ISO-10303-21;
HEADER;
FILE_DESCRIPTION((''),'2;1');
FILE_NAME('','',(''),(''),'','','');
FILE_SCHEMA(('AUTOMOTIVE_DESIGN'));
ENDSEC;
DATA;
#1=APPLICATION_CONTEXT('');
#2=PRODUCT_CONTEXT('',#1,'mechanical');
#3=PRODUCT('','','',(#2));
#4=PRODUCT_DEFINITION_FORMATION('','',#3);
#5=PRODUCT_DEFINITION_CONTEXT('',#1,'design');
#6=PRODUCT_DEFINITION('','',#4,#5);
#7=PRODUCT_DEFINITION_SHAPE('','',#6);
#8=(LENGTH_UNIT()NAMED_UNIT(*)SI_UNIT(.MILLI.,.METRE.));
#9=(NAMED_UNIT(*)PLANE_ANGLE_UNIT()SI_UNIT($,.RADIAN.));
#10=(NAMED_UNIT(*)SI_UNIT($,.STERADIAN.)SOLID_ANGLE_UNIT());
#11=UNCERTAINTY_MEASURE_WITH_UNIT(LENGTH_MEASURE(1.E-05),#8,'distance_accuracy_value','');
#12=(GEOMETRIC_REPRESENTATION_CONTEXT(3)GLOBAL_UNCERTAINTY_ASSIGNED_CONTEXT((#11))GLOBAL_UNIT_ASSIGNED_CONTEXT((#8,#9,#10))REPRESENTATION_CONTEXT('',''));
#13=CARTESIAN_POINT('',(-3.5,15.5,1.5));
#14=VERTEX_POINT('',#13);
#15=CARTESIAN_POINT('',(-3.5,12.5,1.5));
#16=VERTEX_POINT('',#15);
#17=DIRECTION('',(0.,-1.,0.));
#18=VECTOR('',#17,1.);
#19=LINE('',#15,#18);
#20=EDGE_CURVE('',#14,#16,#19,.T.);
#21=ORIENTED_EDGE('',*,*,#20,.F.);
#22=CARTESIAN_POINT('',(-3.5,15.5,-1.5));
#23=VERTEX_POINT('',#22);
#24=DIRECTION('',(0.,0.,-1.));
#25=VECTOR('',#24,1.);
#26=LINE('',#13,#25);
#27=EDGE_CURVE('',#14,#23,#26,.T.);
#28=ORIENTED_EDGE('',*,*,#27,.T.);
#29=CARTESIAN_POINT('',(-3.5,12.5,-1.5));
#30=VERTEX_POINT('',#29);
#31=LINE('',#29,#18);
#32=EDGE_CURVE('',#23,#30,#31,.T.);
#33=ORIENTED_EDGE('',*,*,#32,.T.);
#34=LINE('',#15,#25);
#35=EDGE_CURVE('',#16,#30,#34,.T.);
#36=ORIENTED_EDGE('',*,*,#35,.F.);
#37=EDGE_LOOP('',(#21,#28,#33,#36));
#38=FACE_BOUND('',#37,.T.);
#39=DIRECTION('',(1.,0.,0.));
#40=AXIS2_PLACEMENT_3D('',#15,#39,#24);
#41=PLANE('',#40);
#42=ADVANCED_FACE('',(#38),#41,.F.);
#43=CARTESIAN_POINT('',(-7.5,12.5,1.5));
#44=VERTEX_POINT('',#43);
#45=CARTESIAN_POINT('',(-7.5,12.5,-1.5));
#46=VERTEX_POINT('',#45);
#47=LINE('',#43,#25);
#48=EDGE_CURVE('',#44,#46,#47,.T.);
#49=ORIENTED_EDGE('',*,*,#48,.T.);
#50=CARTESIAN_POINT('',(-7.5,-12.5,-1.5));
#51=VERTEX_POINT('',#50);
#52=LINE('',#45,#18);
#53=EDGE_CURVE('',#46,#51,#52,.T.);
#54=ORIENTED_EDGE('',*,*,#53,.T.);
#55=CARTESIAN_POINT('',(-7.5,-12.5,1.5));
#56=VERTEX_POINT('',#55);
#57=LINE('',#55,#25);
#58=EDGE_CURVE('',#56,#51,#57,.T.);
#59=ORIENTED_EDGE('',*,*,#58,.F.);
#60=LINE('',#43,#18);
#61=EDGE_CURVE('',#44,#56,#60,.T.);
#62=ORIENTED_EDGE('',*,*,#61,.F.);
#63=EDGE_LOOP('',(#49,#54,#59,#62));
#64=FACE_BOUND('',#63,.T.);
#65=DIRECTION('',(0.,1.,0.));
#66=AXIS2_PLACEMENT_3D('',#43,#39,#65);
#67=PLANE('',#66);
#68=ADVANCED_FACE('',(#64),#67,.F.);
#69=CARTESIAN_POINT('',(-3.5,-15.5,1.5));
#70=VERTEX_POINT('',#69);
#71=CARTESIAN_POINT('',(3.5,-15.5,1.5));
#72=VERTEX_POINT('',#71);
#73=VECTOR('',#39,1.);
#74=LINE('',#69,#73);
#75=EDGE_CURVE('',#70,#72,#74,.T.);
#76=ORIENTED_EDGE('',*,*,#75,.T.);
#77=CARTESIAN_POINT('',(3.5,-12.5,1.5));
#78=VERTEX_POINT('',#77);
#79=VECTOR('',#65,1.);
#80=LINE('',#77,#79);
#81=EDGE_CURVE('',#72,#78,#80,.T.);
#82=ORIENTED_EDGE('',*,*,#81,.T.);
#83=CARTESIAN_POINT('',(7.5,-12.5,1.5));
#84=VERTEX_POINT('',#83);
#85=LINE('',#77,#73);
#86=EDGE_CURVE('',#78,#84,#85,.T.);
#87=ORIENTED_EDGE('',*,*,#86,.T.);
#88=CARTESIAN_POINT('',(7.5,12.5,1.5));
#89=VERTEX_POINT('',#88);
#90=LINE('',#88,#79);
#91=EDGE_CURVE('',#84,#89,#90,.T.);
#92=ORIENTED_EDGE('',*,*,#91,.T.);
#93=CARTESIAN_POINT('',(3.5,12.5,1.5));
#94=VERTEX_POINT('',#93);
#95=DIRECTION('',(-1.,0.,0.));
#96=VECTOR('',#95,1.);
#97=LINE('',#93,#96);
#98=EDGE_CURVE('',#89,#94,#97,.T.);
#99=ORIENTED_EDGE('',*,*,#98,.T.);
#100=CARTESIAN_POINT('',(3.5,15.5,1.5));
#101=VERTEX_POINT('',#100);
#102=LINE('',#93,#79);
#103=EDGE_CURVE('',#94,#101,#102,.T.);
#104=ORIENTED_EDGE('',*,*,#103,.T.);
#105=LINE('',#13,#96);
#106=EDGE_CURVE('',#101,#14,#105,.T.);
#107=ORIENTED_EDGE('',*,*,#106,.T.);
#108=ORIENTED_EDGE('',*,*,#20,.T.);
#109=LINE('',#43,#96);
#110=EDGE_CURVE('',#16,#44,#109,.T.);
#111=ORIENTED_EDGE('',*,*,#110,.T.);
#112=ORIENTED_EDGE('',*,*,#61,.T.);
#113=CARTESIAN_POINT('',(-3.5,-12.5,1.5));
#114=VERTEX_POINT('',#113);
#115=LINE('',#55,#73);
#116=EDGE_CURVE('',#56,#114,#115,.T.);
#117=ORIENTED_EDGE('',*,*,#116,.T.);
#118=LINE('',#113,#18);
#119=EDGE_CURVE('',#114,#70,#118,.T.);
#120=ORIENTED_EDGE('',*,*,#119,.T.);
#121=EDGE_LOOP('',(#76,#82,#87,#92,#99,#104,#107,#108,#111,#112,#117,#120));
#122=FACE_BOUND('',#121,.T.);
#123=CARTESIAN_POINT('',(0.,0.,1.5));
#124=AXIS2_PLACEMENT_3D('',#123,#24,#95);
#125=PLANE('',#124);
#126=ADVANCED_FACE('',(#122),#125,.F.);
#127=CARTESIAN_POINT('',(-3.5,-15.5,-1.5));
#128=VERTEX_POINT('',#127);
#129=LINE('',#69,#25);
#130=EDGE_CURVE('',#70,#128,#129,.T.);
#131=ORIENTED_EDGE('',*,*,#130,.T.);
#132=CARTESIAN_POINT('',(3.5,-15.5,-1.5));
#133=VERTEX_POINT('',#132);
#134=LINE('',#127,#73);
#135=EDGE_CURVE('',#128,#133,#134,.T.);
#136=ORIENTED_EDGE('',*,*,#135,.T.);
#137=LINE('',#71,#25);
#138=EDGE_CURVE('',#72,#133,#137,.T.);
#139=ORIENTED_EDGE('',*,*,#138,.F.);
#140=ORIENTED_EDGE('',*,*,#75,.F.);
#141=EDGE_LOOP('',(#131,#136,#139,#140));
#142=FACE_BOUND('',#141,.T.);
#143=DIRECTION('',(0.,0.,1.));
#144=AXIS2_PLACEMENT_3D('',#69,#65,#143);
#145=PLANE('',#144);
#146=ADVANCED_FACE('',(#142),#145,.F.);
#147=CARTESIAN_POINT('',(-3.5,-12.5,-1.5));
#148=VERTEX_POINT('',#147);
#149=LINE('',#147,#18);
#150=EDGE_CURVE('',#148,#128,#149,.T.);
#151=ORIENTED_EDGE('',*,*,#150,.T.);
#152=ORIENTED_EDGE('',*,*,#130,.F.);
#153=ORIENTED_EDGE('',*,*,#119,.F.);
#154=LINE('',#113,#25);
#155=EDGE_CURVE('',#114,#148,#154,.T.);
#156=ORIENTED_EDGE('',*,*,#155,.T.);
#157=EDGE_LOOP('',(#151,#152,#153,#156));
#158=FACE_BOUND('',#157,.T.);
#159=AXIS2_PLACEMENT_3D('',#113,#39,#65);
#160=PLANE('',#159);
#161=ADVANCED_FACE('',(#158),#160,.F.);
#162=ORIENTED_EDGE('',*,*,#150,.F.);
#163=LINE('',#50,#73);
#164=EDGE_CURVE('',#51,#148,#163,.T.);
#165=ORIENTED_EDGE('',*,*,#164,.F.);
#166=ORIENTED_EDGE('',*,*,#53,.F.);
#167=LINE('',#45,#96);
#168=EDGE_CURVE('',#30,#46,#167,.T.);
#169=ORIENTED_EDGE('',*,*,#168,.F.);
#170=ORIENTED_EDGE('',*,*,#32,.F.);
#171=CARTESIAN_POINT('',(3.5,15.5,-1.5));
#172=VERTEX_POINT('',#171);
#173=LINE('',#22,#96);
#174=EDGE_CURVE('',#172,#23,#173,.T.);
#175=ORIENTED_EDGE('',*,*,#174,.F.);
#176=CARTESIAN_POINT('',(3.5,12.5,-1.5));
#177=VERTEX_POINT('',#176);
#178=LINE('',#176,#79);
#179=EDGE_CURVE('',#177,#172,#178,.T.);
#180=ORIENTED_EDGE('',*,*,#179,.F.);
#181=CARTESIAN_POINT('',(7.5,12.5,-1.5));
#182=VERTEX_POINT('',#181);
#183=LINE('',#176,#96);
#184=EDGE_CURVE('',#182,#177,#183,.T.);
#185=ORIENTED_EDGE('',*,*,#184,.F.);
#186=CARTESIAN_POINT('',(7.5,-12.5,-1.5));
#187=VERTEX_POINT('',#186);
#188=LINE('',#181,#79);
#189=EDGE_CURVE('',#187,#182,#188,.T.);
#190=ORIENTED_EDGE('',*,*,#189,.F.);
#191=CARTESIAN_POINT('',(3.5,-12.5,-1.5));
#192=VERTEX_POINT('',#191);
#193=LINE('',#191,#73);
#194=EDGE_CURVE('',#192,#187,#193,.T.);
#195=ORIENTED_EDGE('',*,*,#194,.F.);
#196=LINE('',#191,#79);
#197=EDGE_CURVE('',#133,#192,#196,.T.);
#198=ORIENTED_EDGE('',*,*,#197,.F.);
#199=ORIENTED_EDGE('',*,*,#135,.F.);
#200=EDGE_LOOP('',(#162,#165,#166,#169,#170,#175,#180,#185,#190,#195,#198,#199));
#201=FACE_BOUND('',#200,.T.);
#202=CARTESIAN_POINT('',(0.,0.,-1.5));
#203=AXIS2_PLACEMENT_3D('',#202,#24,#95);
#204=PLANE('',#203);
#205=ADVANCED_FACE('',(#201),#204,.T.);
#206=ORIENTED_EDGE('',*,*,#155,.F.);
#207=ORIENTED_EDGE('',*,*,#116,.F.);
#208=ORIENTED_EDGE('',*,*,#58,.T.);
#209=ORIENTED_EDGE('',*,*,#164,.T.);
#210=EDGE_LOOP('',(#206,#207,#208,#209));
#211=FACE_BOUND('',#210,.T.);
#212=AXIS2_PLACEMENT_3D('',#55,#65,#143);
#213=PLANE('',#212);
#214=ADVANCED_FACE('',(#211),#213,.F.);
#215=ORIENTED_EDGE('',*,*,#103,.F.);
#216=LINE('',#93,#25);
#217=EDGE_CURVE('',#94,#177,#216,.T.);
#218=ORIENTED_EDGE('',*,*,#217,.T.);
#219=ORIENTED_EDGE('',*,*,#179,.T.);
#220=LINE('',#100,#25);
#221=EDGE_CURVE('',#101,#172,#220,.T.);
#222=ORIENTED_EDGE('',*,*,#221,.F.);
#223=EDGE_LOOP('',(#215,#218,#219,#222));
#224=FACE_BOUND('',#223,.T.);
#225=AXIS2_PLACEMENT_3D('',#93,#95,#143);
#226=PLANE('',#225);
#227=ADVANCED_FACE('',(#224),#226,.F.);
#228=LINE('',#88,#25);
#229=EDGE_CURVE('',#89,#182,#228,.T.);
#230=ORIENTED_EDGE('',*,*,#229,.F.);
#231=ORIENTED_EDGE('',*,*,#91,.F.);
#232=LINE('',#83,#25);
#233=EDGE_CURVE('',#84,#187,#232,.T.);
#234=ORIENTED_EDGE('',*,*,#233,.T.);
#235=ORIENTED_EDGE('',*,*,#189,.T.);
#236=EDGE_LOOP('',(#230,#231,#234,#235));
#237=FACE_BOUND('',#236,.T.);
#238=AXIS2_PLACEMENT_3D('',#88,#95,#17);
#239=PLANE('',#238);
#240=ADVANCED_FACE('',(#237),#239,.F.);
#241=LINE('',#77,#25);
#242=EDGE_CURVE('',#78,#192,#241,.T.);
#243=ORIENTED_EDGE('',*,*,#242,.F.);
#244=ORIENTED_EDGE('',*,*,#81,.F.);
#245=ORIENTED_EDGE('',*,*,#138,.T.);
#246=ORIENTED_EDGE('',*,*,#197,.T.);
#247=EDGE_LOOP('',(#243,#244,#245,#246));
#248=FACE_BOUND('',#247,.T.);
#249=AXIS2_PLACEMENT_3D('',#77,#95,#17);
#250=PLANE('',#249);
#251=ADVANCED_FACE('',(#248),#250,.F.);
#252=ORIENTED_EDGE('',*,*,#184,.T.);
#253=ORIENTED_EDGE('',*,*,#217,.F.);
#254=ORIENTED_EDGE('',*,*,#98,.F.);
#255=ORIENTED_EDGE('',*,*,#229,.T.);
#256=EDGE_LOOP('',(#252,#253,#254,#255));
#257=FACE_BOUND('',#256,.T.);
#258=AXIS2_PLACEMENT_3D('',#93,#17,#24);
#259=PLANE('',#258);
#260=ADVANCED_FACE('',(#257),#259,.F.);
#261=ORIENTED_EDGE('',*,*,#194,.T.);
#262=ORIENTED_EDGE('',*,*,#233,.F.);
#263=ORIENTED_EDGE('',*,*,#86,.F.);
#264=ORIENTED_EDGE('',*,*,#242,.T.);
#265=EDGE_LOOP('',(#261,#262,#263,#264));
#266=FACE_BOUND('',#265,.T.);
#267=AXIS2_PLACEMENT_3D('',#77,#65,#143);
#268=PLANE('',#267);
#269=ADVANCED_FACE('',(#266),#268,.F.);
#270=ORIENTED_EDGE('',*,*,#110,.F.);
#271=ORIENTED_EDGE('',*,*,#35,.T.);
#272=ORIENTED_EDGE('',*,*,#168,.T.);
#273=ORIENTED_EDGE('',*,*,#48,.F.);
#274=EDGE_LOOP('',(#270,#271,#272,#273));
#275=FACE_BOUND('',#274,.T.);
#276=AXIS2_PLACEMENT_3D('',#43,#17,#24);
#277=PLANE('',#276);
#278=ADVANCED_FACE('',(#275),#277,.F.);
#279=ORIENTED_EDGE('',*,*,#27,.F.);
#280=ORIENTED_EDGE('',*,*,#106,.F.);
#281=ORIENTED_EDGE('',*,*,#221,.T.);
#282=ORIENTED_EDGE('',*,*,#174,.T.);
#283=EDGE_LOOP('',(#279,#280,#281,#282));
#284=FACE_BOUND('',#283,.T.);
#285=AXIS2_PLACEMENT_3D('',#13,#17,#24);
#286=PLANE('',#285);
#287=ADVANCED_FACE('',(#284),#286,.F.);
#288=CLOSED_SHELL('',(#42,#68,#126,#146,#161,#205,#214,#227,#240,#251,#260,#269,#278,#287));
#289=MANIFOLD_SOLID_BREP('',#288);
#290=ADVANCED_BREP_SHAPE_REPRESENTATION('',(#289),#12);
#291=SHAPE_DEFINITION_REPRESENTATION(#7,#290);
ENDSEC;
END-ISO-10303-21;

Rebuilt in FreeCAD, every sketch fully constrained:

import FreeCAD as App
import Part
import Sketcher


def add_polygon(sketch, points):
    """Adds a closed chain of lines whose ends are joined by coincident constraints."""
    first, n = sketch.GeometryCount, len(points)
    for a, b in zip(points, points[1:] + points[:1]):
        sketch.addGeometry(Part.LineSegment(App.Vector(*a, 0), App.Vector(*b, 0)), False)
    for i in range(n):
        sketch.addConstraint(Sketcher.Constraint("Coincident", first + i, 2, first + (i + 1) % n, 1))

doc = App.newDocument("Part")
params = doc.addObject("Spreadsheet::Sheet", "Params")
for row, (alias, value) in enumerate([
    ("sketch1_width", "4 mm"),
    ("sketch1_width2", "7 mm"),
    ("sketch1_height", "3 mm"),
    ("sketch1_height2", "25 mm"),
    ("pad1_length", "3 mm"),
], start=1):
    params.set(f"A{row}", alias)
    params.set(f"B{row}", "=" + value)
    params.setAlias(f"B{row}", alias)

body = doc.addObject("PartDesign::Body", "Body")

# Sketch on XY plane
sketch1 = body.newObject("Sketcher::SketchObject", "Sketch")
sketch1.AttachmentSupport = (doc.getObject("XY_Plane"), [""])
sketch1.MapMode = "FlatFace"
add_polygon(sketch1, [(7.5, 12.5), (3.5, 12.5), (3.5, 15.5), (-3.5, 15.5), (-3.5, 12.5), (-7.5, 12.5), (-7.5, -12.5), (-3.5, -12.5), (-3.5, -15.5), (3.5, -15.5), (3.5, -12.5), (7.5, -12.5)])  # lines 0-11
sketch1.addConstraint(Sketcher.Constraint("Horizontal", 0))
sketch1.addConstraint(Sketcher.Constraint("Vertical", 1))
sketch1.addConstraint(Sketcher.Constraint("Horizontal", 2))
sketch1.addConstraint(Sketcher.Constraint("Vertical", 3))
sketch1.addConstraint(Sketcher.Constraint("Horizontal", 4))
sketch1.addConstraint(Sketcher.Constraint("Vertical", 5))
sketch1.addConstraint(Sketcher.Constraint("Horizontal", 6))
sketch1.addConstraint(Sketcher.Constraint("Vertical", 7))
sketch1.addConstraint(Sketcher.Constraint("Horizontal", 8))
sketch1.addConstraint(Sketcher.Constraint("Vertical", 9))
sketch1.addConstraint(Sketcher.Constraint("Horizontal", 10))
sketch1.addConstraint(Sketcher.Constraint("Vertical", 11))
sketch1.addConstraint(Sketcher.Constraint("Symmetric", 0, 2, 6, 2, -1, 1))
sketch1.addConstraint(Sketcher.Constraint("Symmetric", 2, 2, 8, 2, -1, 1))
sketch1.addConstraint(Sketcher.Constraint("Symmetric", 4, 2, 10, 2, -1, 1))
sketch1.addConstraint(Sketcher.Constraint("Symmetric", 0, 2, 3, 2, -2))
sketch1.addConstraint(Sketcher.Constraint("DistanceX", 0, 2, 0, 1, 4.0))
sketch1.addConstraint(Sketcher.Constraint("DistanceX", 2, 2, 2, 1, 7.0))
sketch1.addConstraint(Sketcher.Constraint("DistanceY", 1, 1, 1, 2, 3.0))
sketch1.addConstraint(Sketcher.Constraint("DistanceY", 5, 2, 5, 1, 25.0))
sketch1.setExpression("Constraints[28]", "Params.sketch1_width")
sketch1.setExpression("Constraints[29]", "Params.sketch1_width2")
sketch1.setExpression("Constraints[30]", "Params.sketch1_height")
sketch1.setExpression("Constraints[31]", "Params.sketch1_height2")
pad1 = body.newObject("PartDesign::Pad", "Pad")
pad1.Profile = sketch1
pad1.setExpression("Length", "Params.pad1_length")
pad1.Midplane = True

doc.recompute()
